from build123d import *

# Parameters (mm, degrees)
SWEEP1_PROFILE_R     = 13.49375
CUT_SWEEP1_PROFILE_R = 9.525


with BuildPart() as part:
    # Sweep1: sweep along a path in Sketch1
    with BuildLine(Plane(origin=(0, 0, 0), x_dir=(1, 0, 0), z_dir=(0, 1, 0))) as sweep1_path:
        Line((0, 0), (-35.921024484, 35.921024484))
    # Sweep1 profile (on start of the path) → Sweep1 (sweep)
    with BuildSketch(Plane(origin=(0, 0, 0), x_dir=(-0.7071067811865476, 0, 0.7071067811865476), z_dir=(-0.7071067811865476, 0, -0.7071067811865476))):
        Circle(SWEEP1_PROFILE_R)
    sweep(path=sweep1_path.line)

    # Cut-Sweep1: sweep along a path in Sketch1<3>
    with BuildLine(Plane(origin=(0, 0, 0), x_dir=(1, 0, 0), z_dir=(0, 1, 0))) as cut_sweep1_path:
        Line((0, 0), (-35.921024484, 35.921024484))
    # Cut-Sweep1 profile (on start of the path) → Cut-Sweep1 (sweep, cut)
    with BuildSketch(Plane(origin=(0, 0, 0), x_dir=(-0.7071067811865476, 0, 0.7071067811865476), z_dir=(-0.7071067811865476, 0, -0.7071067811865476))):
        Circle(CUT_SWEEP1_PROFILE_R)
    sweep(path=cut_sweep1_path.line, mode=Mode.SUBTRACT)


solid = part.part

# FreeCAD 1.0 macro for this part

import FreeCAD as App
import Part
import Sketcher

V = App.Vector
Q = App.Units.Quantity

doc = App.newDocument("Part")
params = doc.addObject("Spreadsheet::Sheet", "Params")
for row, (alias, value) in enumerate([
    ("sketch1_diameter", "1.0625 in"),
    ("sketch2_width", "2 in"),
    ("sketch3_diameter", "0.75 in"),
    ("sketch4_width", "2 in"),
], start=1):
    params.set(f"A{row}", alias)
    params.set(f"B{row}", "=" + value)
    params.setAlias(f"B{row}", alias)

body = doc.addObject("PartDesign::Body", "Body")

sketch1 = body.newObject("Sketcher::SketchObject", "Sketch")
sketch1.Placement = App.Placement(V(0, 0, 0), App.Rotation(V(-0.707106781, 0, 0.707106781), V(0, 0.999999999, 0), V(-0.707106781, 0, -0.707106781), "ZXY"))
sketch1.addGeometry(Part.Circle(V(0, 0, 0), V(0, 0, 1), 13), False)
sketch1.addConstraint([
    Sketcher.Constraint("Coincident", 0, 3, -1, 1),
    Sketcher.Constraint("Diameter", 0, Q("1.0625 in")),
])
sketch1.setExpression("Constraints[1]", "Params.sketch1_diameter")

sketch2 = body.newObject("Sketcher::SketchObject", "Sketch001")
sketch2.Placement = App.Placement(V(0, 0, 0), App.Rotation(V(-0.707106781, 0, -0.707106781), V(0, 0.999999999, 0), V(0.707106781, 0, -0.707106781), "ZXY"))
sketch2.addGeometry(Part.LineSegment(V(0, 0, 0), V(51, 0, 0)), False)
sketch2.addConstraint([
    Sketcher.Constraint("Horizontal", 0),
    Sketcher.Constraint("Coincident", 0, 1, -1, 1),
    Sketcher.Constraint("DistanceX", 0, 1, 0, 2, Q("2 in")),
])
sketch2.setExpression("Constraints[2]", "Params.sketch2_width")
doc.recompute()

additivepipe = body.newObject("PartDesign::AdditivePipe", "AdditivePipe")
additivepipe.Profile = sketch1
additivepipe.Spine = (sketch2, ["Edge1"])

sketch3 = body.newObject("Sketcher::SketchObject", "Sketch002")
sketch3.Placement = App.Placement(V(0, 0, 0), App.Rotation(V(-0.707106781, 0, 0.707106781), V(0, 0.999999999, 0), V(-0.707106781, 0, -0.707106781), "ZXY"))
sketch3.addGeometry(Part.Circle(V(0, 0, 0), V(0, 0, 1), 10), False)
sketch3.addConstraint([
    Sketcher.Constraint("Coincident", 0, 3, -1, 1),
    Sketcher.Constraint("Diameter", 0, Q("0.75 in")),
])
sketch3.setExpression("Constraints[1]", "Params.sketch3_diameter")

sketch4 = body.newObject("Sketcher::SketchObject", "Sketch003")
sketch4.Placement = App.Placement(V(0, 0, 0), App.Rotation(V(-0.707106781, 0, -0.707106781), V(0, 0.999999999, 0), V(0.707106781, 0, -0.707106781), "ZXY"))
sketch4.addGeometry(Part.LineSegment(V(0, 0, 0), V(51, 0, 0)), False)
sketch4.addConstraint([
    Sketcher.Constraint("Horizontal", 0),
    Sketcher.Constraint("Coincident", 0, 1, -1, 1),
    Sketcher.Constraint("DistanceX", 0, 1, 0, 2, Q("2 in")),
])
sketch4.setExpression("Constraints[2]", "Params.sketch4_width")
doc.recompute()

subtractivepipe = body.newObject("PartDesign::SubtractivePipe", "SubtractivePipe")
subtractivepipe.Profile = sketch3
subtractivepipe.Spine = (sketch4, ["Edge1"])

doc.recompute()
